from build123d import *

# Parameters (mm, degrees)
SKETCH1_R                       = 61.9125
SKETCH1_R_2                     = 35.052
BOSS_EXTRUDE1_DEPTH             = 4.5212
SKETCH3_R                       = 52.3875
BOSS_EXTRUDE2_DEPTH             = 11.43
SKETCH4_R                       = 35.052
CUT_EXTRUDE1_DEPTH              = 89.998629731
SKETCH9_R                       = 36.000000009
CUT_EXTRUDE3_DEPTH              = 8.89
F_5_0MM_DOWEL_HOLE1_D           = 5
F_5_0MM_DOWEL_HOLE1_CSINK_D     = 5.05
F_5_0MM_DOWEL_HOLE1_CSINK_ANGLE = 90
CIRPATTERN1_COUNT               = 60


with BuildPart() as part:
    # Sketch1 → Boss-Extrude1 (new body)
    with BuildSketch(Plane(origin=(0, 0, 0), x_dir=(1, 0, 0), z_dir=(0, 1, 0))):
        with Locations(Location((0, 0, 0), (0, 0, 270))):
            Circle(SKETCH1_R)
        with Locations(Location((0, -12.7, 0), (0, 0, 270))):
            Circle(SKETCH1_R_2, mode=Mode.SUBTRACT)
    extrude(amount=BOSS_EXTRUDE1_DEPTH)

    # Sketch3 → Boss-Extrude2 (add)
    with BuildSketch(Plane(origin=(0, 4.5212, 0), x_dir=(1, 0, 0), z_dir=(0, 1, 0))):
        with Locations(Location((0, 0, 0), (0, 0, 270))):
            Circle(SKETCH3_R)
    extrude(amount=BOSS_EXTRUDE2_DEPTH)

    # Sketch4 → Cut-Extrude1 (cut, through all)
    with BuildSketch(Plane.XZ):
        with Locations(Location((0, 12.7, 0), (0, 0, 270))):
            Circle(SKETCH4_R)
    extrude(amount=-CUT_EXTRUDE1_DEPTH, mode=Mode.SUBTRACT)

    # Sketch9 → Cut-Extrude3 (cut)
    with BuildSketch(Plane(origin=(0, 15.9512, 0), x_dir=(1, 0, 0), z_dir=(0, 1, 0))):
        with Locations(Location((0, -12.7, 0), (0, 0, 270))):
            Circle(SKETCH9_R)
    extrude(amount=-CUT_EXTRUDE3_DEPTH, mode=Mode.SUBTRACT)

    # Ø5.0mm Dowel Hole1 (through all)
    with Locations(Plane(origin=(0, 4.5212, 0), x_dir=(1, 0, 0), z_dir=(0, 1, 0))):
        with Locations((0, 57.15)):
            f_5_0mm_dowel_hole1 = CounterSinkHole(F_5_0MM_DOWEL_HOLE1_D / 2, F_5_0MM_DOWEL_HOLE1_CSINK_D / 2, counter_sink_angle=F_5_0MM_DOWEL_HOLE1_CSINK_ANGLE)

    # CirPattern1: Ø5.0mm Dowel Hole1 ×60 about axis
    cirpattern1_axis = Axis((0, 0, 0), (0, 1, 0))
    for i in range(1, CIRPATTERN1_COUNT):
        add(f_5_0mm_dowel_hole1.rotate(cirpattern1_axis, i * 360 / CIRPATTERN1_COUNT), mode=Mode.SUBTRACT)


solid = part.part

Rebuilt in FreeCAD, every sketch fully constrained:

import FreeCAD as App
import Part
import Sketcher

V = App.Vector
Q = App.Units.Quantity

doc = App.newDocument("Part")
params = doc.addObject("Spreadsheet::Sheet", "Params")
for row, (alias, value) in enumerate([
    ("sketch1_diameter", "2.76 in"),
    ("sketch1_diameter2", "4.875 in"),
    ("pad1_length", "0.178 in"),
    ("sketch2_diameter", "4.125 in"),
    ("pad2_length", "0.45 in"),
    ("sketch3_diameter", "2.76 in"),
    ("pocket2_length", "0.35 in"),
    ("hole_diameter", "5 mm"),
    ("hole_csink_diameter", "5.05 mm"),
], start=1):
    params.set(f"A{row}", alias)
    params.set(f"B{row}", "=" + value)
    params.setAlias(f"B{row}", alias)

body = doc.addObject("PartDesign::Body", "Body")

sketch1 = doc.addObject("Sketcher::SketchObject", "Sketch")
body.addObject(sketch1)
sketch1.AttachmentSupport = (doc.XZ_Plane, [""])
sketch1.MapMode = "FlatFace"
sketch1.addGeometry([
    Part.Circle(V(0, 0, 0), V(0, 0, 1), 62),
    Part.Circle(V(0, 13, 0), V(0, 0, 1), 35),
], False)
sketch1.addConstraint([
    Sketcher.Constraint("Coincident", 0, 3, -1, 1),
    Sketcher.Constraint("PointOnObject", 1, 3, -2),
    Sketcher.Constraint("Diameter", 1, Q("2.76 in")),
    Sketcher.Constraint("Diameter", 0, Q("4.875 in")),
    Sketcher.Constraint("DistanceY", -1, 1, 1, 3, Q("0.5 in")),
])
sketch1.setExpression("Constraints[2]", "Params.sketch1_diameter")
sketch1.setExpression("Constraints[3]", "Params.sketch1_diameter2")
pad1 = doc.addObject("PartDesign::Pad", "Pad")
body.addObject(pad1)
pad1.Profile = sketch1
pad1.setExpression("Length", "Params.pad1_length")
pad1.Reversed = True

sketch2 = doc.addObject("Sketcher::SketchObject", "Sketch001")
body.addObject(sketch2)
sketch2.AttachmentSupport = (doc.XZ_Plane, [""])
sketch2.MapMode = "FlatFace"
sketch2.AttachmentOffset = App.Placement(V(0, 0, -0.178 * 25.4), App.Rotation())
sketch2.addGeometry(Part.Circle(V(0, 0, 0), V(0, 0, 1), 52), False)
sketch2.addConstraint([
    Sketcher.Constraint("Coincident", 0, 3, -1, 1),
    Sketcher.Constraint("Diameter", 0, Q("4.125 in")),
])
sketch2.setExpression("Constraints[1]", "Params.sketch2_diameter")
pad2 = doc.addObject("PartDesign::Pad", "Pad001")
body.addObject(pad2)
pad2.Profile = sketch2
pad2.setExpression("Length", "Params.pad2_length")
pad2.Reversed = True

sketch3 = doc.addObject("Sketcher::SketchObject", "Sketch002")
body.addObject(sketch3)
sketch3.AttachmentSupport = (doc.XZ_Plane, [""])
sketch3.MapMode = "FlatFace"
sketch3.addGeometry(Part.Circle(V(0, 13, 0), V(0, 0, 1), 35), False)
sketch3.addConstraint([
    Sketcher.Constraint("PointOnObject", 0, 3, -2),
    Sketcher.Constraint("Diameter", 0, Q("2.76 in")),
    Sketcher.Constraint("DistanceY", -1, 1, 0, 3, Q("0.5 in")),
])
sketch3.setExpression("Constraints[1]", "Params.sketch3_diameter")
pocket1 = doc.addObject("PartDesign::Pocket", "Pocket")
body.addObject(pocket1)
pocket1.Profile = sketch3
pocket1.Type = "ThroughAll"

sketch4 = doc.addObject("Sketcher::SketchObject", "Sketch003")
body.addObject(sketch4)
sketch4.AttachmentSupport = (doc.XZ_Plane, [""])
sketch4.MapMode = "FlatFace"
sketch4.AttachmentOffset = App.Placement(V(0, 0, -0.628 * 25.4), App.Rotation())
sketch4.addGeometry(Part.Circle(V(0, 13, 0), V(0, 0, 1), 36), False)
sketch4.addConstraint([
    Sketcher.Constraint("PointOnObject", 0, 3, -2),
    Sketcher.Constraint("DistanceY", -1, 1, 0, 3, Q("0.5 in")),
    Sketcher.Constraint("Diameter", 0, Q("72 mm")),
])
pocket2 = doc.addObject("PartDesign::Pocket", "Pocket001")
body.addObject(pocket2)
pocket2.Profile = sketch4
pocket2.setExpression("Length", "Params.pocket2_length")
pocket2.Reversed = True

sketch5 = doc.addObject("Sketcher::SketchObject", "Sketch004")
body.addObject(sketch5)
sketch5.AttachmentSupport = (doc.XZ_Plane, [""])
sketch5.MapMode = "FlatFace"
sketch5.AttachmentOffset = App.Placement(V(0, 0, -0.178 * 25.4), App.Rotation())
sketch5.addGeometry(Part.Circle(V(0, -57.1, 0), V(0, 0, 1), 2.5), False)
sketch5.addConstraint([
    Sketcher.Constraint("PointOnObject", 0, 3, -2),
    Sketcher.Constraint("Diameter", 0, Q("5 mm")),
    Sketcher.Constraint("DistanceY", 0, 3, -1, 1, Q("2.25 in")),
])
doc.recompute()
hole = doc.addObject("PartDesign::Hole", "Hole")
body.addObject(hole)
hole.Profile = sketch5
hole.ThreadType = "None"
hole.setExpression("Diameter", "Params.hole_diameter")
hole.DepthType = "ThroughAll"
hole.HoleCutType = "Countersink"
hole.setExpression("HoleCutDiameter", "Params.hole_csink_diameter")
hole.HoleCutCountersinkAngle = 90
hole.Reversed = True
doc.recompute()

polarpattern = doc.addObject("PartDesign::PolarPattern", "PolarPattern")
body.addObject(polarpattern)
polarpattern.Originals = [hole]
polarpattern.Axis = (doc.Y_Axis, [""])
polarpattern.Angle = 360
polarpattern.Occurrences = 60
body.Tip = polarpattern

doc.recompute()
